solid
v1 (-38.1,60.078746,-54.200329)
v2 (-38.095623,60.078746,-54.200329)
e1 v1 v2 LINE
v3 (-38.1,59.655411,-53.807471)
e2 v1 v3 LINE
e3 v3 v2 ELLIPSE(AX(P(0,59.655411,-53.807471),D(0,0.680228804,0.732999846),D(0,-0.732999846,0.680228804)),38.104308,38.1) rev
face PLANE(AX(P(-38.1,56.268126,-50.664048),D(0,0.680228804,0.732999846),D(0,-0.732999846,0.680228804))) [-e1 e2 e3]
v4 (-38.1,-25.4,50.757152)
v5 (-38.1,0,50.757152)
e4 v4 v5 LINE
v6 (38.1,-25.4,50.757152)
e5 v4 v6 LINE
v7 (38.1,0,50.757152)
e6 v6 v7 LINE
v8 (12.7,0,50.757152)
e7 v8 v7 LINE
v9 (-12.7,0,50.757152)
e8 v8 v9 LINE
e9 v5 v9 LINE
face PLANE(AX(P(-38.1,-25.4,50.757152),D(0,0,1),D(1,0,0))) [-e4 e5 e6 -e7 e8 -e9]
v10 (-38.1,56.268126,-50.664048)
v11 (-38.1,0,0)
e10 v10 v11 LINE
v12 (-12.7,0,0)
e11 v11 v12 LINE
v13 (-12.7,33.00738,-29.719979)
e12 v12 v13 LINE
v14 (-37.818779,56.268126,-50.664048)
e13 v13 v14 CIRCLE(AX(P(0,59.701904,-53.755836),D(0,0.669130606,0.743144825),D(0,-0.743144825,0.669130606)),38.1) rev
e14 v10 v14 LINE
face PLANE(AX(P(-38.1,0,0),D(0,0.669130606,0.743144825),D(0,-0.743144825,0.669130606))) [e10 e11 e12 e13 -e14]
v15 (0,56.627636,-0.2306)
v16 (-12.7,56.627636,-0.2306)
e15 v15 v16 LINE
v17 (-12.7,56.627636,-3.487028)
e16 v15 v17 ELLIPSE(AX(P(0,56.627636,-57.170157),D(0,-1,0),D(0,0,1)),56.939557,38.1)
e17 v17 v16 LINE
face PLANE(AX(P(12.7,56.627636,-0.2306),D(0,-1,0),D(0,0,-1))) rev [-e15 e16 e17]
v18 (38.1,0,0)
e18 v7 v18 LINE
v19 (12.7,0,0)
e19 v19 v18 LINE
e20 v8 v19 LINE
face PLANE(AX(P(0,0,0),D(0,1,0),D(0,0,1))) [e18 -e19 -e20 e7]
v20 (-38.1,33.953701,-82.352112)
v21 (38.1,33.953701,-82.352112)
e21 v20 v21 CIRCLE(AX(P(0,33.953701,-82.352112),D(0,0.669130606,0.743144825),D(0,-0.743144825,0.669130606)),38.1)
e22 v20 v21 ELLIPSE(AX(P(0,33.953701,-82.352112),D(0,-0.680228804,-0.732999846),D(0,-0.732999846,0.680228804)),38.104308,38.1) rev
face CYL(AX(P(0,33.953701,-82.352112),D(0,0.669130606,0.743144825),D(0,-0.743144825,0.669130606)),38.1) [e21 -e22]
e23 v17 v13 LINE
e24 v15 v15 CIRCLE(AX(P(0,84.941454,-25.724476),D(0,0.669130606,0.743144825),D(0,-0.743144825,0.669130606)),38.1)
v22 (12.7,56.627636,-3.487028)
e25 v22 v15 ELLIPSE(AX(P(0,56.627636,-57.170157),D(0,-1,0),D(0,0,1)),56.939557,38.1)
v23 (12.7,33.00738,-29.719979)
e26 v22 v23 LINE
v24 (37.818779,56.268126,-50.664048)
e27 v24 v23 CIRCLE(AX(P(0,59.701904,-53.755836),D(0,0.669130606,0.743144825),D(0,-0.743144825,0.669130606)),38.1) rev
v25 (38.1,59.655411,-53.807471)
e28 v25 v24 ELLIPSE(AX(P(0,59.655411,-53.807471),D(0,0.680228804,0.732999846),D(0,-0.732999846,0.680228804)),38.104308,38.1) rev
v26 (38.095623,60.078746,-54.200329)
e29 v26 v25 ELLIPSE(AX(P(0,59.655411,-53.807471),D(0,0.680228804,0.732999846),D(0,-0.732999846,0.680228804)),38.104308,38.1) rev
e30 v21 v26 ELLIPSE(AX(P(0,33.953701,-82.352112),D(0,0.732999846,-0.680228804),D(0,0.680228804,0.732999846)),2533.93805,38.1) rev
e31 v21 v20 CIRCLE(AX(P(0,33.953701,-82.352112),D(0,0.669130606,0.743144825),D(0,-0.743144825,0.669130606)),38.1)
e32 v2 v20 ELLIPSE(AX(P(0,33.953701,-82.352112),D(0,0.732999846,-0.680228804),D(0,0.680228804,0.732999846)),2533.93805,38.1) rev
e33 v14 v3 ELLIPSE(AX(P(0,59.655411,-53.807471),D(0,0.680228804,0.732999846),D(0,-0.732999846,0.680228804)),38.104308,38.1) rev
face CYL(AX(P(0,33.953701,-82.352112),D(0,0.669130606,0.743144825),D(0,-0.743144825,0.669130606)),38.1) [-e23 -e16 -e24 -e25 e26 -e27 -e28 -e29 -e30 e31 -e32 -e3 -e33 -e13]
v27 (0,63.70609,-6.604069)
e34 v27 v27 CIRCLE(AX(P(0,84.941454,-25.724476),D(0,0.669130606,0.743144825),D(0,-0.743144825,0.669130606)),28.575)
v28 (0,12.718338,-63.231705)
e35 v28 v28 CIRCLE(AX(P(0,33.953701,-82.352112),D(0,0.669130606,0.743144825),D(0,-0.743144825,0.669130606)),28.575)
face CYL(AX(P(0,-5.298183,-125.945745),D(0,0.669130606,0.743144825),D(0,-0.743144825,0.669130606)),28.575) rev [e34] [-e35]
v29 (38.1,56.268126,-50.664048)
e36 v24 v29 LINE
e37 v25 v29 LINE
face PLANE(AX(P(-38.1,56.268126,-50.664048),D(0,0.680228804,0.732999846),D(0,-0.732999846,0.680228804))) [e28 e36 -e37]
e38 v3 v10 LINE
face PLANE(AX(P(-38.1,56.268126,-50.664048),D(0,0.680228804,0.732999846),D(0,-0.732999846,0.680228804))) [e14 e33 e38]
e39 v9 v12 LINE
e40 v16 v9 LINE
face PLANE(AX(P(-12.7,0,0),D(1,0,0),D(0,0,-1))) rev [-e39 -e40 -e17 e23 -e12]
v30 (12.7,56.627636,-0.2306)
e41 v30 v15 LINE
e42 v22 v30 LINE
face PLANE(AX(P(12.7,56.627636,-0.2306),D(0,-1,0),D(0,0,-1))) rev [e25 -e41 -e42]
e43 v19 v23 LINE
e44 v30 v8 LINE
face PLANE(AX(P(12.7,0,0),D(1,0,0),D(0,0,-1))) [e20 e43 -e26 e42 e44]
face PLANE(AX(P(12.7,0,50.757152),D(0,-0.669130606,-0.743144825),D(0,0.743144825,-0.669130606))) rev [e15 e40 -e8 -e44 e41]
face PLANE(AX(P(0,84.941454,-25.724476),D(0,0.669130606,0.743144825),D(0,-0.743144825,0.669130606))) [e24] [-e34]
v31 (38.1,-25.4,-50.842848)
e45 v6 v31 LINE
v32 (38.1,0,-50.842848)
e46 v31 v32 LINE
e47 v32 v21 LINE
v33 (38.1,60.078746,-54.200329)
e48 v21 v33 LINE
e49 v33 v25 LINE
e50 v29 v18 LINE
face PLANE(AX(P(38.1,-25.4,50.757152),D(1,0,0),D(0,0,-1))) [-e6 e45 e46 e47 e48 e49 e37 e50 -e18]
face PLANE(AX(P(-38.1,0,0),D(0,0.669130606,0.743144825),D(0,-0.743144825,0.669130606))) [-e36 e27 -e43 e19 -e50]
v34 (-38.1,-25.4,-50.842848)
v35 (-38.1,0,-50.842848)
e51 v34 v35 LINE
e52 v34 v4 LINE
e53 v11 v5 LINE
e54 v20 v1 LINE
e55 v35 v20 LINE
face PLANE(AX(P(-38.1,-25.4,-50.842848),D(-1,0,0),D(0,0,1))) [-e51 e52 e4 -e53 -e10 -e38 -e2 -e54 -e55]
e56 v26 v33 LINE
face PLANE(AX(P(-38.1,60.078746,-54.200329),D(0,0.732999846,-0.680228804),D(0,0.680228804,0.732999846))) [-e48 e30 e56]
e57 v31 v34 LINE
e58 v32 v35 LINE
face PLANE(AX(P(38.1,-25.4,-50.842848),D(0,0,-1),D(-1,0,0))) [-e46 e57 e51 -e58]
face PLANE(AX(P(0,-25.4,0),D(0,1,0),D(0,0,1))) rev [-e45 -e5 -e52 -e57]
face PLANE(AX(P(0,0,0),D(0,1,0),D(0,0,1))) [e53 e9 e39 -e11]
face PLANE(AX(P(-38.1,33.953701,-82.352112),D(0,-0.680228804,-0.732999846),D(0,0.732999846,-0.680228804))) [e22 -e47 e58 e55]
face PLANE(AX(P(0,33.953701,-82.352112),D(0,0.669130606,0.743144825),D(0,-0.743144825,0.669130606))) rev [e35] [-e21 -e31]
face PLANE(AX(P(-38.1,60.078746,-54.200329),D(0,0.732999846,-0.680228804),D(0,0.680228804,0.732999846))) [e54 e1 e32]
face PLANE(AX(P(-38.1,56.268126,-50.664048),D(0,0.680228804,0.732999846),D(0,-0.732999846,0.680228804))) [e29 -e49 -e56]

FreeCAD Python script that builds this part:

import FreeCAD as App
import Part
import Sketcher

V = App.Vector
Q = App.Units.Quantity

doc = App.newDocument("Part")
body = doc.addObject("PartDesign::Body", "Body")

# Sketch on XZ plane
sketch1 = body.newObject("Sketcher::SketchObject", "Sketch")
sketch1.AttachmentSupport = (doc.getObject("XZ_Plane"), [""])
sketch1.MapMode = "FlatFace"
sketch1.addGeometry(Part.LineSegment(V(-38, -51, 0), V(-38, 51, 0)), False)
sketch1.addGeometry(Part.LineSegment(V(-38, 51, 0), V(38, 51, 0)), False)
sketch1.addGeometry(Part.LineSegment(V(38, 51, 0), V(38, -51, 0)), False)
sketch1.addGeometry(Part.LineSegment(V(38, -51, 0), V(-38, -51, 0)), False)
sketch1.addConstraint(Sketcher.Constraint("Coincident", 0, 2, 1, 1))
sketch1.addConstraint(Sketcher.Constraint("Coincident", 1, 2, 2, 1))
sketch1.addConstraint(Sketcher.Constraint("Coincident", 2, 2, 3, 1))
sketch1.addConstraint(Sketcher.Constraint("Coincident", 3, 2, 0, 1))
sketch1.addConstraint(Sketcher.Constraint("Vertical", 0))
sketch1.addConstraint(Sketcher.Constraint("Horizontal", 1))
sketch1.addConstraint(Sketcher.Constraint("Vertical", 2))
sketch1.addConstraint(Sketcher.Constraint("Horizontal", 3))
sketch1.addConstraint(Sketcher.Constraint("DistanceX", 1, 1, 1, 2, Q("3 in")))
sketch1.addConstraint(Sketcher.Constraint("DistanceY", 0, 1, 0, 2, Q("4 in")))
sketch1.addConstraint(Sketcher.Constraint("DistanceX", 0, 2, -1, 1, Q("1.5 in")))
sketch1.addConstraint(Sketcher.Constraint("DistanceY", -1, 1, 0, 2, 50.757152))
pad1 = body.newObject("PartDesign::Pad", "Pad")
pad1.Profile = sketch1
pad1.Length = Q("1 in")

# Sketch on YZ plane
sketch2 = body.newObject("Sketcher::SketchObject", "Sketch001")
sketch2.AttachmentSupport = (doc.getObject("YZ_Plane"), [""])
sketch2.MapMode = "FlatFace"
sketch2.addGeometry(Part.LineSegment(V(57, 0, 0), V(0, 51, 0)), False)
sketch2.addGeometry(Part.LineSegment(V(0, 51, 0), V(0, 0, 0)), False)
sketch2.addGeometry(Part.LineSegment(V(0, 0, 0), V(57, -51, 0)), False)
sketch2.addGeometry(Part.LineSegment(V(57, -51, 0), V(57, 0, 0)), False)
sketch2.addConstraint(Sketcher.Constraint("Coincident", 0, 2, 1, 1))
sketch2.addConstraint(Sketcher.Constraint("Coincident", 1, 2, 2, 1))
sketch2.addConstraint(Sketcher.Constraint("Coincident", 2, 2, 3, 1))
sketch2.addConstraint(Sketcher.Constraint("Coincident", 3, 2, 0, 1))
sketch2.addConstraint(Sketcher.Constraint("Vertical", 1))
sketch2.addConstraint(Sketcher.Constraint("Vertical", 3))
sketch2.addConstraint(Sketcher.Constraint("Coincident", 1, 2, -1, 1))
sketch2.addConstraint(Sketcher.Constraint("Parallel", 0, 2))
sketch2.addConstraint(Sketcher.Constraint("Distance", 0, Q("3 in")))
sketch2.addConstraint(Sketcher.Constraint("Angle", 0, Q("138 deg")))
sketch2.addConstraint(Sketcher.Constraint("DistanceY", 3, 2, -1, 1, 0.2306))
pad2 = body.newObject("PartDesign::Pad", "Pad001")
pad2.Profile = sketch2
pad2.Length = Q("1 in")
pad2.Midplane = True

# Sketch on an angled plane
sketch3 = body.newObject("Sketcher::SketchObject", "Sketch002")
sketch3.Placement = App.Placement(V(0, 25.23955, 28.03136), App.Rotation(V(1, 0, 0), V(0, 0.743144825, -0.669130606), V(0, 0.669130606, 0.743144825), "ZXY"))
sketch3.addGeometry(Part.Circle(V(0, 80, 0), V(0, 0, 1), 38), False)
sketch3.addConstraint(Sketcher.Constraint("PointOnObject", 0, 3, -2))
sketch3.addConstraint(Sketcher.Constraint("Diameter", 0, Q("3 in")))
sketch3.addConstraint(Sketcher.Constraint("DistanceY", -1, 1, 0, 3, 80.336836))
pad3 = body.newObject("PartDesign::Pad", "Pad002")
pad3.Profile = sketch3
pad3.Length = Q("3 in")
pad3.Reversed = True

# Sketch on YZ plane
sketch4 = body.newObject("Sketcher::SketchObject", "Sketch003")
sketch4.AttachmentSupport = (doc.getObject("YZ_Plane"), [""])
sketch4.MapMode = "FlatFace"
sketch4.AttachmentOffset = App.Placement(V(0, 0, 1.5 * 25.4), App.Rotation())
sketch4.addGeometry(Part.LineSegment(V(0, -51, 0), V(34, -82, 0)), False)
sketch4.addGeometry(Part.LineSegment(V(34, -82, 0), V(60, -54, 0)), False)
sketch4.addGeometry(Part.LineSegment(V(60, -54, 0), V(56, -51, 0)), False)
sketch4.addGeometry(Part.LineSegment(V(56, -51, 0), V(0, 0, 0)), False)
sketch4.addGeometry(Part.LineSegment(V(0, 0, 0), V(0, -51, 0)), False)
sketch4.addConstraint(Sketcher.Constraint("Coincident", 0, 2, 1, 1))
sketch4.addConstraint(Sketcher.Constraint("Coincident", 1, 2, 2, 1))
sketch4.addConstraint(Sketcher.Constraint("Coincident", 2, 2, 3, 1))
sketch4.addConstraint(Sketcher.Constraint("Coincident", 3, 2, 4, 1))
sketch4.addConstraint(Sketcher.Constraint("Coincident", 4, 2, 0, 1))
sketch4.addConstraint(Sketcher.Constraint("Vertical", 4))
sketch4.addConstraint(Sketcher.Constraint("Coincident", 3, 2, -1, 1))
sketch4.addConstraint(Sketcher.Constraint("Perpendicular", 0, 1))
sketch4.addConstraint(Sketcher.Constraint("Perpendicular", 1, 2))
sketch4.addConstraint(Sketcher.Constraint("Angle", 3, Q("138 deg")))
sketch4.addConstraint(Sketcher.Constraint("DistanceX", -1, 1, 0, 2, 33.953701))
sketch4.addConstraint(Sketcher.Constraint("DistanceY", 4, 2, 2, 2, 0.1788))
sketch4.addConstraint(Sketcher.Constraint("Distance", 1, 38.40626))
sketch4.addConstraint(Sketcher.Constraint("DistanceY", 4, 2, 4, 1, 50.842848))
pad4 = body.newObject("PartDesign::Pad", "Pad003")
pad4.Profile = sketch4
pad4.Length = Q("3 in")
pad4.Reversed = True

# Sketch on an angled plane
sketch5 = body.newObject("Sketcher::SketchObject", "Sketch004")
sketch5.Placement = App.Placement(V(0, 25.23955, 28.03136), App.Rotation(V(1, 0, 0), V(0, 0.743144825, -0.669130606), V(0, 0.669130606, 0.743144825), "ZXY"))
sketch5.addGeometry(Part.Circle(V(0, 80, 0), V(0, 0, 1), 29), False)
sketch5.addConstraint(Sketcher.Constraint("PointOnObject", 0, 3, -2))
sketch5.addConstraint(Sketcher.Constraint("Diameter", 0, Q("2.25 in")))
sketch5.addConstraint(Sketcher.Constraint("DistanceY", -1, 1, 0, 3, 80.336836))
pocket1 = body.newObject("PartDesign::Pocket", "Pocket")
pocket1.Profile = sketch5
pocket1.Type = "ThroughAll"

doc.recompute()
